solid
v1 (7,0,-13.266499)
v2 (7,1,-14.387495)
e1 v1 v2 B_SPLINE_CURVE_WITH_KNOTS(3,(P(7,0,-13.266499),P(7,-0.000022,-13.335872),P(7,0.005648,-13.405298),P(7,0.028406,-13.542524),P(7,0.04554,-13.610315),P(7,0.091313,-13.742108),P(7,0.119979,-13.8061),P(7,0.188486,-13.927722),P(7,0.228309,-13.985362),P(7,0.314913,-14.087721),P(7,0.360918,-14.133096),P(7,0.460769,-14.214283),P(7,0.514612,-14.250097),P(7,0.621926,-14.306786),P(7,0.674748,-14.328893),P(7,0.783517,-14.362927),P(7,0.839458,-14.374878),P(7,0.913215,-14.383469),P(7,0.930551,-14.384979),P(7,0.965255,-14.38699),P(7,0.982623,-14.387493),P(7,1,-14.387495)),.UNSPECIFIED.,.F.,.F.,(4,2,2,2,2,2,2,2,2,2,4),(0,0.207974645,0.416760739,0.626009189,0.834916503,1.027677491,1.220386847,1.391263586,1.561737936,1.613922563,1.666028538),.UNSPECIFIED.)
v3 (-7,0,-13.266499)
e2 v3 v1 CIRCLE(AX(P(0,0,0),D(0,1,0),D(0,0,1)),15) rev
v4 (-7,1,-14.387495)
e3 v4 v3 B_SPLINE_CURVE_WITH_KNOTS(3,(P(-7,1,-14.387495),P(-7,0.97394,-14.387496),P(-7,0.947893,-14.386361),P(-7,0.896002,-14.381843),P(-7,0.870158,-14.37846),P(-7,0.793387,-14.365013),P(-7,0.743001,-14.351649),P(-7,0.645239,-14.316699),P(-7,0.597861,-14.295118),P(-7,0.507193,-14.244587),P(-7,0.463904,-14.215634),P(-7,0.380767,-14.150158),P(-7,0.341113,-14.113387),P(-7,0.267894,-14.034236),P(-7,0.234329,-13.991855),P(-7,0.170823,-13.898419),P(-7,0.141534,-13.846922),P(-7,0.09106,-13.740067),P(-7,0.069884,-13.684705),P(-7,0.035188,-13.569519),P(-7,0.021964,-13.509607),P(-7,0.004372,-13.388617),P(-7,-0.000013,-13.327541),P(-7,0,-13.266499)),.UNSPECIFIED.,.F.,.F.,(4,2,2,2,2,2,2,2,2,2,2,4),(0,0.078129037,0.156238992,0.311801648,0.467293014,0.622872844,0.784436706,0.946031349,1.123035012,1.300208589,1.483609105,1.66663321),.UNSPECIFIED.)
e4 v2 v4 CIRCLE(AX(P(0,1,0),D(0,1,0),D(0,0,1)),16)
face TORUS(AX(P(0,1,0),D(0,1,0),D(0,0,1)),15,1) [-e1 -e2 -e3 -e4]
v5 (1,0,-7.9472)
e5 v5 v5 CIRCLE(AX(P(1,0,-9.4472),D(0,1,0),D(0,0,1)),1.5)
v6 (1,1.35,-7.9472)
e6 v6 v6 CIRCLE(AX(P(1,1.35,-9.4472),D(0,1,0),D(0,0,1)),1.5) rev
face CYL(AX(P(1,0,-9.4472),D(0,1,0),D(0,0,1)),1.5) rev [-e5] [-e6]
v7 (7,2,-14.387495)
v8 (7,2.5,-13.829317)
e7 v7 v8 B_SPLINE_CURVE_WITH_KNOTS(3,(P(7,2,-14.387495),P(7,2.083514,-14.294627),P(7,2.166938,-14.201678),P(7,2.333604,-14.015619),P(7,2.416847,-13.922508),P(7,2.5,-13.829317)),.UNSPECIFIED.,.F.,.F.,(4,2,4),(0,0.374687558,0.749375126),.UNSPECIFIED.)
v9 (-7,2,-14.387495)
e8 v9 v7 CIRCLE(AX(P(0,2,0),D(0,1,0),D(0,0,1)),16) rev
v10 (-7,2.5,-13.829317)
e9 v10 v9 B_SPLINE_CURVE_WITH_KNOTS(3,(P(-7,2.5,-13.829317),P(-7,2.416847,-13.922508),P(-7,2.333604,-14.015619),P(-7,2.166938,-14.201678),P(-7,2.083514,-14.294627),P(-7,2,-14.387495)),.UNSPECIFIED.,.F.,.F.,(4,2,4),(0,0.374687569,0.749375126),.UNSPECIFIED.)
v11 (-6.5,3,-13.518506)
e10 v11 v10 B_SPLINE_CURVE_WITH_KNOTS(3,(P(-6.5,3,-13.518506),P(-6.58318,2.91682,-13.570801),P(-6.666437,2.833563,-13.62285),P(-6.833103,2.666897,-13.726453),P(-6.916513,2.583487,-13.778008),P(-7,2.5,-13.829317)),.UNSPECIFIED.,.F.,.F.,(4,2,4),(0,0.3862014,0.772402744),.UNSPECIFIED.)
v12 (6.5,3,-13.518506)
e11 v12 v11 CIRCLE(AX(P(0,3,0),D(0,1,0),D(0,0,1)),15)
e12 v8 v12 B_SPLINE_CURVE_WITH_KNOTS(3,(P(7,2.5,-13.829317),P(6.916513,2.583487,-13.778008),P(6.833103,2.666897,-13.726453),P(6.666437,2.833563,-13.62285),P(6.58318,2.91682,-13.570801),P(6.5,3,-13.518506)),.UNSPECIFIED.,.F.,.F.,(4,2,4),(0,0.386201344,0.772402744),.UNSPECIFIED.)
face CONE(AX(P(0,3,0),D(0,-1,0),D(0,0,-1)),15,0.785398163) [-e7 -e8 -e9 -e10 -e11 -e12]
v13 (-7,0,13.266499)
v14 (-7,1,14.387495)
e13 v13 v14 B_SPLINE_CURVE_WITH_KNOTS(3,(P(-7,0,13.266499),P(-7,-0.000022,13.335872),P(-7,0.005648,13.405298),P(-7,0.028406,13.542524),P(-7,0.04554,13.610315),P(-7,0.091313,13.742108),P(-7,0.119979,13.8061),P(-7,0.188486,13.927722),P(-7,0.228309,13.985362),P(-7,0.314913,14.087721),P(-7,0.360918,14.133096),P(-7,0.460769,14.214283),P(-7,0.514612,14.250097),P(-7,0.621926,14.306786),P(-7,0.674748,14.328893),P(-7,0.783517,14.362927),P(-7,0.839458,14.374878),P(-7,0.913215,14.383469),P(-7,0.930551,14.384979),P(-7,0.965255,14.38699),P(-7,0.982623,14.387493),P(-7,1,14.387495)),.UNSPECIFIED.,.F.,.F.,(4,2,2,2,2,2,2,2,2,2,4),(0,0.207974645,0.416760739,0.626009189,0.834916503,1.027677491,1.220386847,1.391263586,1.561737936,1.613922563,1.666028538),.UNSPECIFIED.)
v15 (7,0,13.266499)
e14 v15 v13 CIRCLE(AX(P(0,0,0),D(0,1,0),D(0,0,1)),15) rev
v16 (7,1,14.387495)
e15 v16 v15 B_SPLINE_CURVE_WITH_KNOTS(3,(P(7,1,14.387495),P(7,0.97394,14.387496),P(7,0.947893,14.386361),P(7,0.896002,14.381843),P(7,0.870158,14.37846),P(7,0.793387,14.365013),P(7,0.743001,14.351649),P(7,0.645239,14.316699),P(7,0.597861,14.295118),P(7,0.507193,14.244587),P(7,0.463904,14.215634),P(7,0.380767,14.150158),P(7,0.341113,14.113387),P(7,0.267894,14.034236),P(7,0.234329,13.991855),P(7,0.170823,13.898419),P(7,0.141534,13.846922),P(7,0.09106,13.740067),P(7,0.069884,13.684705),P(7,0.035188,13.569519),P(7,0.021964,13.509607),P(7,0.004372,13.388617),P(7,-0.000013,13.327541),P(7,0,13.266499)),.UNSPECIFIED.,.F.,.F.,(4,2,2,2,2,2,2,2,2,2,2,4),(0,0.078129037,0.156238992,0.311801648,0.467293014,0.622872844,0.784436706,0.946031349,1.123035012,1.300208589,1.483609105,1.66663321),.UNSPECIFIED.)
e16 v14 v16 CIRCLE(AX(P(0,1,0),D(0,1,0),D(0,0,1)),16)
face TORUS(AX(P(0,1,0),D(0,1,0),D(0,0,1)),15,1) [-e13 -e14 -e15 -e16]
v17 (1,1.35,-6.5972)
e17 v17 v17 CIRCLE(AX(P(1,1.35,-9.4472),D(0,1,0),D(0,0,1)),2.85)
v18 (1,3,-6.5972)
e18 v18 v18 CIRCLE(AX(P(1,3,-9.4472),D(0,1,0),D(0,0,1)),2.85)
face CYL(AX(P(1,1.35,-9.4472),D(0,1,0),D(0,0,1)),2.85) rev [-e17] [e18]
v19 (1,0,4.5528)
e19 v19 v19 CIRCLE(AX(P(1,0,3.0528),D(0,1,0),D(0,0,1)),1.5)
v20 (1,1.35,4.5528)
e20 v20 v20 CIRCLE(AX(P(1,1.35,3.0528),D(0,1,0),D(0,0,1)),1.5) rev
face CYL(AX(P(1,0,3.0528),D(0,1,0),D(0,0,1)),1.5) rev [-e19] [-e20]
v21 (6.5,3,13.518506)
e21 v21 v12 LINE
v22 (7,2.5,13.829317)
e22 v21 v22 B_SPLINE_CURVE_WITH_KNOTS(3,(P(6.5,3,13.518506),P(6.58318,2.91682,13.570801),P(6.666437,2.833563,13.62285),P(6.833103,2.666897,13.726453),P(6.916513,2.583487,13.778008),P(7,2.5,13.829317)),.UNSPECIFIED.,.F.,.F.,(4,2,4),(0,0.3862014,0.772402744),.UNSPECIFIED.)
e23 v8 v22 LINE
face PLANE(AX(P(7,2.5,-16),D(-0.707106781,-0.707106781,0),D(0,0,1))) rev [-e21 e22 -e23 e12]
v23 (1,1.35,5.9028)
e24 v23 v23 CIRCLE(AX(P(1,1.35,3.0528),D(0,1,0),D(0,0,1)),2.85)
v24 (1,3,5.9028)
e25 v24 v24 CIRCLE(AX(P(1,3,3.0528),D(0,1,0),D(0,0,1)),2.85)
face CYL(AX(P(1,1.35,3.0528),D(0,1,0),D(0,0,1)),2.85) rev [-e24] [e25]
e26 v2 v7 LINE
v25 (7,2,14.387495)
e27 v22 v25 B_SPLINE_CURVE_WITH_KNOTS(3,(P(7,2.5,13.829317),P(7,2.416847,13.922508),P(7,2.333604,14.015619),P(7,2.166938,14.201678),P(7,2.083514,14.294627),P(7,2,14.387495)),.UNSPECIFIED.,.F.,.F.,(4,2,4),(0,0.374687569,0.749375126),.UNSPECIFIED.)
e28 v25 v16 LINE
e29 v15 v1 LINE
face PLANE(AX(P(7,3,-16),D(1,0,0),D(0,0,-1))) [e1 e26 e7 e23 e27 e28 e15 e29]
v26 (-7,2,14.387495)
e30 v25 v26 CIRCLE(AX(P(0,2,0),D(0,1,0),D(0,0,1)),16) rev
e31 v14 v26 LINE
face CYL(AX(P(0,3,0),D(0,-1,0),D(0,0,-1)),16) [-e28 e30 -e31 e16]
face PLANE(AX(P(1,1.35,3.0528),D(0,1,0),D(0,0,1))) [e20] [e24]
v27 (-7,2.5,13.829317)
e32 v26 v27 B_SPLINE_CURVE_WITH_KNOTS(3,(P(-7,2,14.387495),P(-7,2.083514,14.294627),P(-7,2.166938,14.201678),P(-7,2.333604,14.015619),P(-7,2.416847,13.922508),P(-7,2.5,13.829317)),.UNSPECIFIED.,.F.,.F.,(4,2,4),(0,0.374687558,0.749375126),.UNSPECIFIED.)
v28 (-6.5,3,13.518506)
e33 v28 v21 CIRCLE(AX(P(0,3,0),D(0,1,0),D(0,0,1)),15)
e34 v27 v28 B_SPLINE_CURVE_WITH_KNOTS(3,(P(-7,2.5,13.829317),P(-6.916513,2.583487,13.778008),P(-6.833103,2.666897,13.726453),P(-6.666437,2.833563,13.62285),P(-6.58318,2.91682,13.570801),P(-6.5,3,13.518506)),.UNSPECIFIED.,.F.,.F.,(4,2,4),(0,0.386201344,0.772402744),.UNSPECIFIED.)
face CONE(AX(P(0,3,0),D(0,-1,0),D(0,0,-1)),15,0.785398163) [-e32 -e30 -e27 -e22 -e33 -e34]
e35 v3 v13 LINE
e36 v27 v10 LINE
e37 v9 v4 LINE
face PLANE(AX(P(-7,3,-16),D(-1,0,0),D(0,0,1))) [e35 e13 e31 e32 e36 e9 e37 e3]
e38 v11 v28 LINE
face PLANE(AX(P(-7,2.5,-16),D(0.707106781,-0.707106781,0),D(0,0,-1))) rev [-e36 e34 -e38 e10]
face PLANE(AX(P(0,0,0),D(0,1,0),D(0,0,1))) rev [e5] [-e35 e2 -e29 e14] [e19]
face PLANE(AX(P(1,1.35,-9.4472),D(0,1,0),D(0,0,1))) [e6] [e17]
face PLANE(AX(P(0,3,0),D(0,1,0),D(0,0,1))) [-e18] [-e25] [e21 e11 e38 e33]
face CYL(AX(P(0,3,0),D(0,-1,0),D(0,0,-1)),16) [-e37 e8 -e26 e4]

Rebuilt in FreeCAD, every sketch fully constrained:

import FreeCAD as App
import Part
import Sketcher

V = App.Vector
Q = App.Units.Quantity


def edges_at(feature, points):
    """Names of the edges that pass closest to the given points."""
    edges = feature.Shape.Edges
    near = lambda p: min(range(len(edges)), key=lambda i: edges[i].distToShape(Part.Vertex(*p))[0])
    return sorted({f"Edge{near(p) + 1}" for p in points})


def add_polygon(sketch, points):
    """Adds a closed chain of lines whose ends are joined by coincident constraints."""
    first, n = sketch.GeometryCount, len(points)
    for a, b in zip(points, points[1:] + points[:1]):
        sketch.addGeometry(Part.LineSegment(App.Vector(*a, 0), App.Vector(*b, 0)), False)
    for i in range(n):
        sketch.addConstraint(Sketcher.Constraint("Coincident", first + i, 2, first + (i + 1) % n, 1))

doc = App.newDocument("Part")
params = doc.addObject("Spreadsheet::Sheet", "Params")
for row, (alias, value) in enumerate([
    ("sketch1_diameter", "32 mm"),
    ("pad1_length", "3 mm"),
    ("sketch2_width", "9 mm"),
    ("sketch2_height", "32 mm"),
    ("sketch3_diameter", "3 mm"),
    ("sketch4_diameter", "5.7 mm"),
    ("pocket3_length", "1.65 mm"),
    ("chamfer_size", "0.5 mm"),
    ("fillet_radius", "1 mm"),
    ("chamfer2_size", "1 mm"),
], start=1):
    params.set(f"A{row}", alias)
    params.set(f"B{row}", "=" + value)
    params.setAlias(f"B{row}", alias)

body = doc.addObject("PartDesign::Body", "Body")

sketch1 = body.newObject("Sketcher::SketchObject", "Sketch")
sketch1.AttachmentSupport = (doc.getObject("XZ_Plane"), [""])
sketch1.MapMode = "FlatFace"
sketch1.addGeometry(Part.Circle(V(0, 0, 0), V(0, 0, 1), 16), False)
sketch1.addConstraint([
    Sketcher.Constraint("Coincident", 0, 3, -1, 1),
    Sketcher.Constraint("Diameter", 0, Q("32 mm")),
])
sketch1.setExpression("Constraints[1]", "Params.sketch1_diameter")
pad1 = body.newObject("PartDesign::Pad", "Pad")
pad1.Profile = sketch1
pad1.setExpression("Length", "Params.pad1_length")
pad1.Reversed = True

sketch2 = body.newObject("Sketcher::SketchObject", "Sketch001")
sketch2.AttachmentSupport = (doc.getObject("XZ_Plane"), [""])
sketch2.MapMode = "FlatFace"
add_polygon(sketch2, [(-16, -16), (-16, 16), (-7, 16), (-7, -16)])
add_polygon(sketch2, [(7, -16), (7, 16), (16, 16), (16, -16)])
sketch2.addConstraint([
    Sketcher.Constraint("Vertical", 0),
    Sketcher.Constraint("Horizontal", 1),
    Sketcher.Constraint("Vertical", 2),
    Sketcher.Constraint("Horizontal", 3),
    Sketcher.Constraint("Vertical", 4),
    Sketcher.Constraint("Horizontal", 5),
    Sketcher.Constraint("Vertical", 6),
    Sketcher.Constraint("Horizontal", 7),
    Sketcher.Constraint("Symmetric", 2, 2, 4, 2, -1, 1),
    Sketcher.Constraint("Symmetric", 0, 2, 6, 2, -1, 1),
    Sketcher.Constraint("Horizontal", 1, 2, 4, 2),
    Sketcher.Constraint("DistanceX", 1, 1, 1, 2, Q("9 mm")),
    Sketcher.Constraint("DistanceY", 0, 1, 0, 2, Q("32 mm")),
    Sketcher.Constraint("DistanceX", 0, 2, -1, 1, Q("16 mm")),
])
sketch2.setExpression("Constraints[19]", "Params.sketch2_width")
sketch2.setExpression("Constraints[20]", "Params.sketch2_height")
pocket1 = body.newObject("PartDesign::Pocket", "Pocket")
pocket1.Profile = sketch2
pocket1.Type = "ThroughAll"

sketch3 = body.newObject("Sketcher::SketchObject", "Sketch002")
sketch3.AttachmentSupport = (doc.getObject("XZ_Plane"), [""])
sketch3.MapMode = "FlatFace"
sketch3.AttachmentOffset = App.Placement(V(0, 0, -3), App.Rotation())
sketch3.addGeometry([
    Part.Circle(V(1, -9.4, 0), V(0, 0, 1), 1.5),
    Part.Circle(V(1, 3.1, 0), V(0, 0, 1), 1.5),
], False)
sketch3.addConstraint([
    Sketcher.Constraint("Equal", 0, 1),
    Sketcher.Constraint("Vertical", 0, 3, 1, 3),
    Sketcher.Constraint("Diameter", 0, Q("3 mm")),
    Sketcher.Constraint("DistanceX", -1, 1, 0, 3, Q("1 mm")),
    Sketcher.Constraint("DistanceY", 0, 3, 1, 3, Q("12.5 mm")),
    Sketcher.Constraint("DistanceY", 0, 3, -1, 1, Q("9.4472 mm")),
])
sketch3.setExpression("Constraints[2]", "Params.sketch3_diameter")
pocket2 = body.newObject("PartDesign::Pocket", "Pocket001")
pocket2.Profile = sketch3
pocket2.Type = "ThroughAll"
pocket2.Reversed = True

sketch4 = body.newObject("Sketcher::SketchObject", "Sketch003")
sketch4.AttachmentSupport = (doc.getObject("XZ_Plane"), [""])
sketch4.MapMode = "FlatFace"
sketch4.AttachmentOffset = App.Placement(V(0, 0, -3), App.Rotation())
sketch4.addGeometry([
    Part.Circle(V(1, -9.4, 0), V(0, 0, 1), 2.9),
    Part.Circle(V(1, 3.1, 0), V(0, 0, 1), 2.9),
], False)
sketch4.addConstraint([
    Sketcher.Constraint("Equal", 0, 1),
    Sketcher.Constraint("Vertical", 0, 3, 1, 3),
    Sketcher.Constraint("Diameter", 0, Q("5.7 mm")),
    Sketcher.Constraint("DistanceX", -1, 1, 0, 3, Q("1 mm")),
    Sketcher.Constraint("DistanceY", 0, 3, 1, 3, Q("12.5 mm")),
    Sketcher.Constraint("DistanceY", 0, 3, -1, 1, Q("9.4472 mm")),
])
sketch4.setExpression("Constraints[2]", "Params.sketch4_diameter")
pocket3 = body.newObject("PartDesign::Pocket", "Pocket002")
pocket3.Profile = sketch4
pocket3.setExpression("Length", "Params.pocket3_length")
pocket3.Reversed = True
doc.recompute()

chamfer = body.newObject("PartDesign::Chamfer", "Chamfer")
chamfer.Base = (pocket3, edges_at(pocket3, [(-7, 3, 0), (7, 3, 0)]))
chamfer.setExpression("Size", "Params.chamfer_size")
doc.recompute()

fillet = body.newObject("PartDesign::Fillet", "Fillet")
fillet.Base = (chamfer, edges_at(chamfer, [(0, 0, -16), (0, 0, 16)]))
fillet.setExpression("Radius", "Params.fillet_radius")
doc.recompute()

chamfer2 = body.newObject("PartDesign::Chamfer", "Chamfer001")
chamfer2.Base = (fillet, edges_at(fillet, [(0, 3, -16), (0, 3, 16)]))
chamfer2.setExpression("Size", "Params.chamfer2_size")

doc.recompute()
